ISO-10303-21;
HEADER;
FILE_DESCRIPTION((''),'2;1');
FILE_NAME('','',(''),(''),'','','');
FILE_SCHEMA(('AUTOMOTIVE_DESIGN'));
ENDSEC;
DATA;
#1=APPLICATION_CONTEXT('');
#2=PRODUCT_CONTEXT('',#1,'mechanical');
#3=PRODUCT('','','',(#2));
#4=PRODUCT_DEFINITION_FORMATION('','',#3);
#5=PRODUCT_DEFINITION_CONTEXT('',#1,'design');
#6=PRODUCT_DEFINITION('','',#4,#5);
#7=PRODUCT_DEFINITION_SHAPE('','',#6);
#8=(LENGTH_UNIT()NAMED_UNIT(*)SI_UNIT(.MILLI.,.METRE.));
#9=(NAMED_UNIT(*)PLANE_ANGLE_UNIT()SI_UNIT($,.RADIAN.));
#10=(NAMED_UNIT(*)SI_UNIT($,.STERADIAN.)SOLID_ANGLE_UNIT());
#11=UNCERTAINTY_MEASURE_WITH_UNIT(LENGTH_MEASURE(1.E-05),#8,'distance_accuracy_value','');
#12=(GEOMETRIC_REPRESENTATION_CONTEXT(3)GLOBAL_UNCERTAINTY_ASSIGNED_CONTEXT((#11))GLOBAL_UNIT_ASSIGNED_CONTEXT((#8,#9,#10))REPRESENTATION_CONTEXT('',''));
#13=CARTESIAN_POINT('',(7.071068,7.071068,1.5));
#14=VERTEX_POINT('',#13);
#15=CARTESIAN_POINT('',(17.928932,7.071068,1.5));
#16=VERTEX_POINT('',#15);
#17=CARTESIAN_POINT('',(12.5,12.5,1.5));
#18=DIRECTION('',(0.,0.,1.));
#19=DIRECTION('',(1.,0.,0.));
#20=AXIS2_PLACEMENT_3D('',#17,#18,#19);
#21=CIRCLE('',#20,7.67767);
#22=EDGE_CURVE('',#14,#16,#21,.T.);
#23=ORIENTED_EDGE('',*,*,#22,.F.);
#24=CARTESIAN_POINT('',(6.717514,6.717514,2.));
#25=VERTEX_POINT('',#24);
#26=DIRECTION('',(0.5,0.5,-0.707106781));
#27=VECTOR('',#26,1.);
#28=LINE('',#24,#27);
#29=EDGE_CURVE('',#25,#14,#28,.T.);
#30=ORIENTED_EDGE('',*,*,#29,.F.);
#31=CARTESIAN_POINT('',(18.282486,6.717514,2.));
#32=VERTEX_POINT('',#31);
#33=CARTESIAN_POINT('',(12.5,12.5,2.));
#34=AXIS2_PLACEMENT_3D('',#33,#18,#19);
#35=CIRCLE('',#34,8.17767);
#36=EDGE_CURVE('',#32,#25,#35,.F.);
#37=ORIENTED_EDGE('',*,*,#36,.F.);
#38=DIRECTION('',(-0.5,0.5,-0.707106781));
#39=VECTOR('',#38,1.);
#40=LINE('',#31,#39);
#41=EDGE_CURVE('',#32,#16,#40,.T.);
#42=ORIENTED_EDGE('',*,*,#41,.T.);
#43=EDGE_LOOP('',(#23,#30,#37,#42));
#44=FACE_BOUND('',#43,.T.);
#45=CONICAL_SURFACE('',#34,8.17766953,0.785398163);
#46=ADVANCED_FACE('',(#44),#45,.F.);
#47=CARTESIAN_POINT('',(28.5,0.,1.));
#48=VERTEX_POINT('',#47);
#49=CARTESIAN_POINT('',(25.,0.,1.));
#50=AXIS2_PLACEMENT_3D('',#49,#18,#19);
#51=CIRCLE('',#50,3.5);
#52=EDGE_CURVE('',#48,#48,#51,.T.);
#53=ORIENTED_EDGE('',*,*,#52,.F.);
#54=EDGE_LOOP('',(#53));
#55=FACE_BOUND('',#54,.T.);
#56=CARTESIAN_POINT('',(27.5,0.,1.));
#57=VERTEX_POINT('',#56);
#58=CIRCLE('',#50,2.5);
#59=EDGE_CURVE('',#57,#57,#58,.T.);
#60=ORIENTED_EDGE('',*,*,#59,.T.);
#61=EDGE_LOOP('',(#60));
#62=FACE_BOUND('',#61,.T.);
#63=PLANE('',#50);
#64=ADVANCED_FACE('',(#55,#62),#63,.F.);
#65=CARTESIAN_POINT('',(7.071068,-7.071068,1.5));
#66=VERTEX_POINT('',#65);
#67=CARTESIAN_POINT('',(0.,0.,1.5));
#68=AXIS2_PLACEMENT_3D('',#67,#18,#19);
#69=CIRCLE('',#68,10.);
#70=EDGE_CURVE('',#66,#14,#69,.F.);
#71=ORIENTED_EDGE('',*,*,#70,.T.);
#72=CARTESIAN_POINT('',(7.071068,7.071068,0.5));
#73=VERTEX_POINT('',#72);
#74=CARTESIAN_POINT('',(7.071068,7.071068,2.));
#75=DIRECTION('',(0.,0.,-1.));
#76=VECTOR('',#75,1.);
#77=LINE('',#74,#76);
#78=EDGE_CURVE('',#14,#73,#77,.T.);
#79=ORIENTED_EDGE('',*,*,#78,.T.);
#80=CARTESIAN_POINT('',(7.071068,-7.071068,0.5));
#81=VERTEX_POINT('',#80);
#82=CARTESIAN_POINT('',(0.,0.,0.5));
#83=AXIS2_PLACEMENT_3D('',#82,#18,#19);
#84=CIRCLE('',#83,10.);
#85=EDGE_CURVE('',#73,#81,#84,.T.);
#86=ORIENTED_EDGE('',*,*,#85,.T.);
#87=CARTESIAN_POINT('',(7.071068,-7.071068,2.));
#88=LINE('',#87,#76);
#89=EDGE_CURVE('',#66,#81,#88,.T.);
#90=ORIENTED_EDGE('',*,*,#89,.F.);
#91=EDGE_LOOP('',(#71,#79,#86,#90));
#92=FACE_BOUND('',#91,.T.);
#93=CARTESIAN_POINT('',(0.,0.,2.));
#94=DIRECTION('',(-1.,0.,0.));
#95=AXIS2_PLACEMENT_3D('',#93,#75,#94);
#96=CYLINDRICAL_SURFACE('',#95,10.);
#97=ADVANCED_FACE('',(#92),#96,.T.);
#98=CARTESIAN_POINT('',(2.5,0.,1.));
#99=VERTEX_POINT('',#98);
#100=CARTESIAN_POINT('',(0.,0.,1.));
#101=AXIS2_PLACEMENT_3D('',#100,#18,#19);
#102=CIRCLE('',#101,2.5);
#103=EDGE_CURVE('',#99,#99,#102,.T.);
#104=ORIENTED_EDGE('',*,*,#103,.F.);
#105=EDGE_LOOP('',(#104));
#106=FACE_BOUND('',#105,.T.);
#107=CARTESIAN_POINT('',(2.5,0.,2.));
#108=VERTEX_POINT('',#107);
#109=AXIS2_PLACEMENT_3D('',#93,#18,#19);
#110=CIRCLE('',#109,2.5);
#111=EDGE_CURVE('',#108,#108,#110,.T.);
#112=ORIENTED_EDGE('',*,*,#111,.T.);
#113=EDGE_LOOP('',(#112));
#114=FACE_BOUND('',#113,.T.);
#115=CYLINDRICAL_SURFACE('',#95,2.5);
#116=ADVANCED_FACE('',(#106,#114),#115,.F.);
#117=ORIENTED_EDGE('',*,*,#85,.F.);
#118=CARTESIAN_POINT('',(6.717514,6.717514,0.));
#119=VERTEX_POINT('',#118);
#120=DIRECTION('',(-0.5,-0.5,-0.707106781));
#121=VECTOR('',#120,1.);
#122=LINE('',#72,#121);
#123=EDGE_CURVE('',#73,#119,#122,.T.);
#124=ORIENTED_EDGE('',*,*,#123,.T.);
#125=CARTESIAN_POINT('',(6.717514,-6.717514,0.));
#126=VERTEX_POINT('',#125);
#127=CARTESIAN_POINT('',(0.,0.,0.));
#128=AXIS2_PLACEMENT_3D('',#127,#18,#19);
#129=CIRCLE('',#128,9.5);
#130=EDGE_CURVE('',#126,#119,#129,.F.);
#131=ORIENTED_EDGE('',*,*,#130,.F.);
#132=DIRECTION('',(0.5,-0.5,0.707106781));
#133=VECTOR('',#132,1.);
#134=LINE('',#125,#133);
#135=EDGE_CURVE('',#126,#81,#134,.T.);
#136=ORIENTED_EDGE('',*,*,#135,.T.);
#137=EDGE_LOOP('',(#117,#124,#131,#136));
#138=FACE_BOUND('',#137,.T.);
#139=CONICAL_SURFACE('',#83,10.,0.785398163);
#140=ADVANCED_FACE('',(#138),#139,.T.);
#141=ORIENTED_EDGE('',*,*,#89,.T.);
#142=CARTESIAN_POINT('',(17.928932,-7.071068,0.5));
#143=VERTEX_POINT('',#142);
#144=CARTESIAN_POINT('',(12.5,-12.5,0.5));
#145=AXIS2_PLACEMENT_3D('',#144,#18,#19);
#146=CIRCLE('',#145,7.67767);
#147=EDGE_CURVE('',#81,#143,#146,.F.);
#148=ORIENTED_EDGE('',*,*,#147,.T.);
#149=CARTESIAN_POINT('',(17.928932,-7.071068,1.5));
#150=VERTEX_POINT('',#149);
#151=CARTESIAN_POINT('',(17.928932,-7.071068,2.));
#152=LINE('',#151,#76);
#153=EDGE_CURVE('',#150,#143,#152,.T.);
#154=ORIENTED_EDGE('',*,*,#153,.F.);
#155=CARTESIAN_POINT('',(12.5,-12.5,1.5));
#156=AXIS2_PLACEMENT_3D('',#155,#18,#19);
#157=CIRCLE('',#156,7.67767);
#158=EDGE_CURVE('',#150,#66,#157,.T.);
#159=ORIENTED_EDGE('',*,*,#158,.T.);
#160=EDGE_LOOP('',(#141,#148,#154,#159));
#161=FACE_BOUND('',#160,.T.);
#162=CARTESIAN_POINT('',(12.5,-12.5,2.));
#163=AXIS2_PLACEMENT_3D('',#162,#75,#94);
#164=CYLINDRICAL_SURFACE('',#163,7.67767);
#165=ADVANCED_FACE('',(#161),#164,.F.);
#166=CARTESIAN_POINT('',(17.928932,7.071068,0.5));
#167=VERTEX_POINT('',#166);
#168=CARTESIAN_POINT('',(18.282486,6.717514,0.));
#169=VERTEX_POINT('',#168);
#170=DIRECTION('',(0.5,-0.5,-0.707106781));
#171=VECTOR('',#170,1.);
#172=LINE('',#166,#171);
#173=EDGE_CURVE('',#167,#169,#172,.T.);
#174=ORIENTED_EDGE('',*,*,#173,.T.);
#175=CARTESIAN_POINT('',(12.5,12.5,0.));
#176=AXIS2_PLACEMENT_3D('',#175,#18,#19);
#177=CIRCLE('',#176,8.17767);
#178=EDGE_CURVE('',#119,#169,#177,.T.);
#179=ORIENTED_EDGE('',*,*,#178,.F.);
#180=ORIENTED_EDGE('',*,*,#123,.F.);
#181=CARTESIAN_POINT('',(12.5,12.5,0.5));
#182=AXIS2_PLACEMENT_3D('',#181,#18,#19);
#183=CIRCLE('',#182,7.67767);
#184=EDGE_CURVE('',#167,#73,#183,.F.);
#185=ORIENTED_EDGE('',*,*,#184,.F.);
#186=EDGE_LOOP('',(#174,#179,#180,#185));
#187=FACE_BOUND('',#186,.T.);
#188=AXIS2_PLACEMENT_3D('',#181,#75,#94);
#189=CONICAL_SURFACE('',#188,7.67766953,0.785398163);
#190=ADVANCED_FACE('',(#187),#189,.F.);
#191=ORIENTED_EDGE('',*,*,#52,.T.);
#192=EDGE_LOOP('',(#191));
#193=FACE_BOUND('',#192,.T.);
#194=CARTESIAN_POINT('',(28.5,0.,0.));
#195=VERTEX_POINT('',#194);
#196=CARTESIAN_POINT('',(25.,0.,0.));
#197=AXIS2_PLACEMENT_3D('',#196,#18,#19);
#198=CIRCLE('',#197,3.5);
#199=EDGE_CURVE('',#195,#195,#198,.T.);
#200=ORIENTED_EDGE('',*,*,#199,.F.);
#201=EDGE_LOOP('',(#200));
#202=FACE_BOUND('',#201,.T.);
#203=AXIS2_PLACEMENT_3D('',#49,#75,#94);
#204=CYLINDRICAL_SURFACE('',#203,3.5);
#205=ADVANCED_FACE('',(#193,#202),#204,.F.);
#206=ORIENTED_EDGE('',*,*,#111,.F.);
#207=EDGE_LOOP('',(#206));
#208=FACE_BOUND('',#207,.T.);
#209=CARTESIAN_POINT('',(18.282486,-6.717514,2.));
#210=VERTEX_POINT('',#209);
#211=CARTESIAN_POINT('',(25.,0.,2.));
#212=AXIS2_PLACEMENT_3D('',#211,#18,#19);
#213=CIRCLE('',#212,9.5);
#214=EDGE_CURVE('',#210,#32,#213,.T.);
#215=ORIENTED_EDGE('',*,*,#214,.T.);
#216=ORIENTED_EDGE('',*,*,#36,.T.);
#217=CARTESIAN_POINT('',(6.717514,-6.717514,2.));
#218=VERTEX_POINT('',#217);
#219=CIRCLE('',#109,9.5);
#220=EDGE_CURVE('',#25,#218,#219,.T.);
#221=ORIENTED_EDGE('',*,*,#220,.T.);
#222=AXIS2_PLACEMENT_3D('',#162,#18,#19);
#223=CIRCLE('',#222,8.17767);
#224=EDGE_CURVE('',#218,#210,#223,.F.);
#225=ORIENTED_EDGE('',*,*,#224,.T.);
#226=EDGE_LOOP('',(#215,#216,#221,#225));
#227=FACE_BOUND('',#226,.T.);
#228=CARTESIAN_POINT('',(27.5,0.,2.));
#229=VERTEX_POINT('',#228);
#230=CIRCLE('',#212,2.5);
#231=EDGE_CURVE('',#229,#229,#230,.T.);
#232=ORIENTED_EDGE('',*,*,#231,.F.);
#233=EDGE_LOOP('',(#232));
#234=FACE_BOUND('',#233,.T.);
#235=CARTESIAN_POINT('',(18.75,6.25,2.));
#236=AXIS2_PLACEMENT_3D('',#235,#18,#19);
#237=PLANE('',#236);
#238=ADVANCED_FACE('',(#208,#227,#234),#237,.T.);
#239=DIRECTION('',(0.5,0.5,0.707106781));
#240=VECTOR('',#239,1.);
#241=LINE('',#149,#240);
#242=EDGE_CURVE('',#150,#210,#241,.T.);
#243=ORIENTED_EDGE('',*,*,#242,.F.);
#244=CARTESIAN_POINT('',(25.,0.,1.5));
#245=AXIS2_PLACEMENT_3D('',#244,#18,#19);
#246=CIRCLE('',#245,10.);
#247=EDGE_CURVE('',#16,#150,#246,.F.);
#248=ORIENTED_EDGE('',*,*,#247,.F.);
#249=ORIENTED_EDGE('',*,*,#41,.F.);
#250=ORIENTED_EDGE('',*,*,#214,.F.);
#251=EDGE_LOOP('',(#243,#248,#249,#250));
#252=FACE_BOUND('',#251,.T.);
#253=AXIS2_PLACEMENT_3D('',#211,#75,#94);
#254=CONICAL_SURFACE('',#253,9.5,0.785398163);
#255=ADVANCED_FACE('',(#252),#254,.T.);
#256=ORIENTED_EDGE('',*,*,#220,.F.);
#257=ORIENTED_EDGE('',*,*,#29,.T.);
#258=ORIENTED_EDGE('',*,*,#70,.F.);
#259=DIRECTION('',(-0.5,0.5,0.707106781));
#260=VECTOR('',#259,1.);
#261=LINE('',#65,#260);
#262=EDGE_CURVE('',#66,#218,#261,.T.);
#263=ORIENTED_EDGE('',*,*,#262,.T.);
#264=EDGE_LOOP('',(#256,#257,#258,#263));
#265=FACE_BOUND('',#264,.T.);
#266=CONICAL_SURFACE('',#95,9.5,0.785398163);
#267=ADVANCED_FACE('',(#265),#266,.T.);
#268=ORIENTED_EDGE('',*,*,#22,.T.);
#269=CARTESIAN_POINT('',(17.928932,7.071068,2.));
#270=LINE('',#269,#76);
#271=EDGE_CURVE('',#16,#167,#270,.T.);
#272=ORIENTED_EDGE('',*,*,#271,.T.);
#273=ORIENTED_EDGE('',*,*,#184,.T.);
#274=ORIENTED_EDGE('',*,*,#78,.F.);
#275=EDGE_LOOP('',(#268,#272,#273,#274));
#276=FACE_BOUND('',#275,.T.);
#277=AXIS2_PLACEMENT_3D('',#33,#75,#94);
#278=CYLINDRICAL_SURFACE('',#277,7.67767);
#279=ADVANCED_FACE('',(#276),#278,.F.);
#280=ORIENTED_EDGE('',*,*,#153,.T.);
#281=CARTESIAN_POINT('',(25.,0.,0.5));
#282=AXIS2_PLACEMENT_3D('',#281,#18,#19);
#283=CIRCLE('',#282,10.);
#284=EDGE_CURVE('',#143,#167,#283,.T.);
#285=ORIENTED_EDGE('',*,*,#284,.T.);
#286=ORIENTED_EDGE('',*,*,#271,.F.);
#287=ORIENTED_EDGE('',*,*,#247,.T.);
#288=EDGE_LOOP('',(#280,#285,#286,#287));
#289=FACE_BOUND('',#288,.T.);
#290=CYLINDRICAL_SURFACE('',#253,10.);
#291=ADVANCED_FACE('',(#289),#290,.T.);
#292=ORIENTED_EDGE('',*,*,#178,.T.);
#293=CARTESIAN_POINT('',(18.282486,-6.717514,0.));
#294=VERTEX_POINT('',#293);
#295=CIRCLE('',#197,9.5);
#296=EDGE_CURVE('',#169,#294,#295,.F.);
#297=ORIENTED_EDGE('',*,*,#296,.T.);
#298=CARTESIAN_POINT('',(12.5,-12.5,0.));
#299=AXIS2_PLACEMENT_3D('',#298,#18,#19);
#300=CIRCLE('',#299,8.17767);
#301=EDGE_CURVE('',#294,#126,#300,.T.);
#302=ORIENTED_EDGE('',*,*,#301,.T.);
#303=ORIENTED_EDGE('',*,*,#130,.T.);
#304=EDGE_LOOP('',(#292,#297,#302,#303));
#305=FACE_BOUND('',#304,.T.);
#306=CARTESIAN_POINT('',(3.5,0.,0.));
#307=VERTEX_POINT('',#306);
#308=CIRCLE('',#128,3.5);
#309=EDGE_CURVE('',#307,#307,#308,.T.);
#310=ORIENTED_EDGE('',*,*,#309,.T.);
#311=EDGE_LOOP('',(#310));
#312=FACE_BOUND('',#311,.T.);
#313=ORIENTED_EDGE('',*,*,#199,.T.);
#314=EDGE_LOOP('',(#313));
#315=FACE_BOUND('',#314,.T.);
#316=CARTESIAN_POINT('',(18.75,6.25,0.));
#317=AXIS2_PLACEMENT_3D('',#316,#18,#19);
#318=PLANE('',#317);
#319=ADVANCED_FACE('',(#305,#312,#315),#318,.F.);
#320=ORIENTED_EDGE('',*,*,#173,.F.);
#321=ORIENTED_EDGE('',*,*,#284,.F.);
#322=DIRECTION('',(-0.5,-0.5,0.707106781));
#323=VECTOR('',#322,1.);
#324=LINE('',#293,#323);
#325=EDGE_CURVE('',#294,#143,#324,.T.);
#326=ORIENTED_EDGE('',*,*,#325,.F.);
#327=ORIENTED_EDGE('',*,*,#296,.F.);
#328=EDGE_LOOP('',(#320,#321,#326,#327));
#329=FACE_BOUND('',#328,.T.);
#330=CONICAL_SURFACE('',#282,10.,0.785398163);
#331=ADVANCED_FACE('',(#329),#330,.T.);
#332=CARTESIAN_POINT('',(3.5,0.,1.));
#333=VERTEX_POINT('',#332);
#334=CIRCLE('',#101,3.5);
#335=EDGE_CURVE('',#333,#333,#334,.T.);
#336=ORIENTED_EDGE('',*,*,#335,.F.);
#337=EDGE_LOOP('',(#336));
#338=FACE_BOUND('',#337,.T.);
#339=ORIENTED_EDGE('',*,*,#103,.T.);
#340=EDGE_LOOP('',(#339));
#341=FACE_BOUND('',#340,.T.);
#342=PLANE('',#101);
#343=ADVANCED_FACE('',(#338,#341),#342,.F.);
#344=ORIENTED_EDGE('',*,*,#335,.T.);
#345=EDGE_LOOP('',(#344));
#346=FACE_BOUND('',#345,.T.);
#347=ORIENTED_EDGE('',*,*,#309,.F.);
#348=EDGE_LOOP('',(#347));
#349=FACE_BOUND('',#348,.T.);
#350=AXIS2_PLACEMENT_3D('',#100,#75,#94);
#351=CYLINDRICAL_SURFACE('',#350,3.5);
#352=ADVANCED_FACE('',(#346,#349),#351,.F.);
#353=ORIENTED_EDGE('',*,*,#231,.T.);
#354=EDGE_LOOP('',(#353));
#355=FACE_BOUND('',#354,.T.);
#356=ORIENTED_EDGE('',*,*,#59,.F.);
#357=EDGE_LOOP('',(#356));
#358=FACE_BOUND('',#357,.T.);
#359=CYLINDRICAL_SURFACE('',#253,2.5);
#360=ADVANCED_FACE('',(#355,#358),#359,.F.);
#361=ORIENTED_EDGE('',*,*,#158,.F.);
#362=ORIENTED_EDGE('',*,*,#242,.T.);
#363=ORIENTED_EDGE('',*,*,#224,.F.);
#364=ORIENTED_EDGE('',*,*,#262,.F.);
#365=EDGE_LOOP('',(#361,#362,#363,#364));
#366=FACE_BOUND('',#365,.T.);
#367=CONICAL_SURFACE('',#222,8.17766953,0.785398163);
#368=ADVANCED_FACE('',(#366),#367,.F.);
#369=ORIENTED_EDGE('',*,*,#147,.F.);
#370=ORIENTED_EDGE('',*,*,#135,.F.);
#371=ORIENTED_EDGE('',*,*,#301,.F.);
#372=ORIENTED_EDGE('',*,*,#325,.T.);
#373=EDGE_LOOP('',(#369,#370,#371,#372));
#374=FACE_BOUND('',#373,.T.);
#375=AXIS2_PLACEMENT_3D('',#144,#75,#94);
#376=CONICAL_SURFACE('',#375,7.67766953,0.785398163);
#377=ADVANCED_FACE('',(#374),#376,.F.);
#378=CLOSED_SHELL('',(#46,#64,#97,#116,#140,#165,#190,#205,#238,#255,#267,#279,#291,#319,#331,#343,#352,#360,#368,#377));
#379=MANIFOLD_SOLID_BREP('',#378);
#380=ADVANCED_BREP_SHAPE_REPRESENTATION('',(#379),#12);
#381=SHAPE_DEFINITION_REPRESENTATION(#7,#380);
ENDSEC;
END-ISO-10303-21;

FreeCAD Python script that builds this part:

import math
import FreeCAD as App
import Part
import Sketcher


def edges_at(feature, points):
    """Names of the edges that pass closest to the given points."""
    edges = feature.Shape.Edges
    near = lambda p: min(range(len(edges)), key=lambda i: edges[i].distToShape(Part.Vertex(*p))[0])
    return sorted({f"Edge{near(p) + 1}" for p in points})

doc = App.newDocument("Part")
body = doc.addObject("PartDesign::Body", "Body")

sketch1 = body.newObject("Sketcher::SketchObject", "Sketch")
sketch1.AttachmentSupport = (doc.getObject("XY_Plane"), [""])
sketch1.MapMode = "FlatFace"
sketch1.addGeometry([
    Part.ArcOfCircle(Part.Circle(App.Vector(25, 0, 0), App.Vector(0, 0, 1), 10), math.radians(-135), math.radians(135)),
    Part.ArcOfCircle(Part.Circle(App.Vector(12.5, 12.5, 0), App.Vector(0, 0, 1), 7.7), math.radians(-135), math.radians(-45)),
    Part.ArcOfCircle(Part.Circle(App.Vector(0, 0, 0), App.Vector(0, 0, 1), 10), math.radians(45), math.radians(315)),
    Part.ArcOfCircle(Part.Circle(App.Vector(12.5, -12.5, 0), App.Vector(0, 0, 1), 7.7), math.radians(45), math.radians(135)),
    Part.Circle(App.Vector(0, 0, 0), App.Vector(0, 0, 1), 2.5),
    Part.Circle(App.Vector(25, 0, 0), App.Vector(0, 0, 1), 2.5),
], False)
sketch1.addConstraint([
    Sketcher.Constraint("Tangent", 0, 2, 1, 2),
    Sketcher.Constraint("Tangent", 1, 1, 2, 1),
    Sketcher.Constraint("Tangent", 2, 2, 3, 2),
    Sketcher.Constraint("Tangent", 3, 1, 0, 1),
    Sketcher.Constraint("Coincident", 2, 3, -1, 1),
    Sketcher.Constraint("Coincident", 4, 3, -1, 1),
    Sketcher.Constraint("Coincident", 5, 3, 0, 3),
    Sketcher.Constraint("Equal", 0, 2),
    Sketcher.Constraint("Equal", 1, 3),
    Sketcher.Constraint("Equal", 4, 5),
    Sketcher.Constraint("PointOnObject", 0, 3, -1),
    Sketcher.Constraint("Diameter", 4, 5.0),
    Sketcher.Constraint("Radius", 0, 10.0),
    Sketcher.Constraint("DistanceX", -1, 1, 0, 3, 25.0),
    Sketcher.Constraint("DistanceY", 3, 3, 1, 3, 25.0),
])
pad1 = body.newObject("PartDesign::Pad", "Pad")
pad1.Profile = sketch1
pad1.Length = 2
doc.recompute()

chamfer = body.newObject("PartDesign::Chamfer", "Chamfer")
chamfer.Base = (pad1, edges_at(pad1, [
    (12.5, -4.822, 2),
    (35, 0, 2),
    (12.5, 4.822, 2),
    (35, 0, 0),
    (12.5, -4.822, 0),
    (-10, 0, 0),
    (12.5, 4.822, 0),
    (-10, 0, 2),
]))
chamfer.Size = 0.5

sketch2 = body.newObject("Sketcher::SketchObject", "Sketch001")
sketch2.AttachmentSupport = (doc.getObject("XY_Plane"), [""])
sketch2.MapMode = "FlatFace"
sketch2.addGeometry([
    Part.Circle(App.Vector(0, 0, 0), App.Vector(0, 0, 1), 3.5),
    Part.Circle(App.Vector(25, 0, 0), App.Vector(0, 0, 1), 3.5),
], False)
sketch2.addConstraint([
    Sketcher.Constraint("Coincident", 0, 3, -1, 1),
    Sketcher.Constraint("Equal", 0, 1),
    Sketcher.Constraint("PointOnObject", 1, 3, -1),
    Sketcher.Constraint("Diameter", 0, 7.0),
    Sketcher.Constraint("DistanceX", -1, 1, 1, 3, 25.0),
])
pocket1 = body.newObject("PartDesign::Pocket", "Pocket")
pocket1.Profile = sketch2
pocket1.Length = 1
pocket1.Reversed = True

doc.recompute()
